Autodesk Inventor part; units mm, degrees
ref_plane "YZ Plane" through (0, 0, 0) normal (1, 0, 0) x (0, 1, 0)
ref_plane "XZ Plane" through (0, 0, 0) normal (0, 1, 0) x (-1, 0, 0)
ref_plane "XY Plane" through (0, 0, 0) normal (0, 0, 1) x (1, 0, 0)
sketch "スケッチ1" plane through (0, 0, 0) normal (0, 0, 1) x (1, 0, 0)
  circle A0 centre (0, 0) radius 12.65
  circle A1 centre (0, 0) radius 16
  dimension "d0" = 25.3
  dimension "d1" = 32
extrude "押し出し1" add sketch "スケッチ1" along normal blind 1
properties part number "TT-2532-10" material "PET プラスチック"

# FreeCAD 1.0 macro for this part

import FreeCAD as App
import Part
import Sketcher
from FreeCAD import Vector
Q = App.Units.Quantity

doc = App.newDocument("Part")
body = doc.addObject("PartDesign::Body", "Body")

# Sketch on XY plane
sketch1 = body.newObject("Sketcher::SketchObject", "Sketch")
sketch1.AttachmentSupport = (doc.getObject("XY_Plane"), [""])
sketch1.MapMode = "FlatFace"
sketch1.addGeometry([
    Part.Circle(Vector(0, 0, 0), Vector(0, 0, 1), 16),
    Part.Circle(Vector(0, 0, 0), Vector(0, 0, 1), 13),
], False)
sketch1.addConstraint([
    Sketcher.Constraint("Coincident", 0, 3, -1, 1),
    Sketcher.Constraint("Coincident", 1, 3, -1, 1),
    Sketcher.Constraint("Diameter", 0, Q("32 mm")),
    Sketcher.Constraint("Diameter", 1, Q("25.3 mm")),
])
pad1 = body.newObject("PartDesign::Pad", "Pad")
pad1.Profile = sketch1
pad1.Length = 1

doc.recompute()
